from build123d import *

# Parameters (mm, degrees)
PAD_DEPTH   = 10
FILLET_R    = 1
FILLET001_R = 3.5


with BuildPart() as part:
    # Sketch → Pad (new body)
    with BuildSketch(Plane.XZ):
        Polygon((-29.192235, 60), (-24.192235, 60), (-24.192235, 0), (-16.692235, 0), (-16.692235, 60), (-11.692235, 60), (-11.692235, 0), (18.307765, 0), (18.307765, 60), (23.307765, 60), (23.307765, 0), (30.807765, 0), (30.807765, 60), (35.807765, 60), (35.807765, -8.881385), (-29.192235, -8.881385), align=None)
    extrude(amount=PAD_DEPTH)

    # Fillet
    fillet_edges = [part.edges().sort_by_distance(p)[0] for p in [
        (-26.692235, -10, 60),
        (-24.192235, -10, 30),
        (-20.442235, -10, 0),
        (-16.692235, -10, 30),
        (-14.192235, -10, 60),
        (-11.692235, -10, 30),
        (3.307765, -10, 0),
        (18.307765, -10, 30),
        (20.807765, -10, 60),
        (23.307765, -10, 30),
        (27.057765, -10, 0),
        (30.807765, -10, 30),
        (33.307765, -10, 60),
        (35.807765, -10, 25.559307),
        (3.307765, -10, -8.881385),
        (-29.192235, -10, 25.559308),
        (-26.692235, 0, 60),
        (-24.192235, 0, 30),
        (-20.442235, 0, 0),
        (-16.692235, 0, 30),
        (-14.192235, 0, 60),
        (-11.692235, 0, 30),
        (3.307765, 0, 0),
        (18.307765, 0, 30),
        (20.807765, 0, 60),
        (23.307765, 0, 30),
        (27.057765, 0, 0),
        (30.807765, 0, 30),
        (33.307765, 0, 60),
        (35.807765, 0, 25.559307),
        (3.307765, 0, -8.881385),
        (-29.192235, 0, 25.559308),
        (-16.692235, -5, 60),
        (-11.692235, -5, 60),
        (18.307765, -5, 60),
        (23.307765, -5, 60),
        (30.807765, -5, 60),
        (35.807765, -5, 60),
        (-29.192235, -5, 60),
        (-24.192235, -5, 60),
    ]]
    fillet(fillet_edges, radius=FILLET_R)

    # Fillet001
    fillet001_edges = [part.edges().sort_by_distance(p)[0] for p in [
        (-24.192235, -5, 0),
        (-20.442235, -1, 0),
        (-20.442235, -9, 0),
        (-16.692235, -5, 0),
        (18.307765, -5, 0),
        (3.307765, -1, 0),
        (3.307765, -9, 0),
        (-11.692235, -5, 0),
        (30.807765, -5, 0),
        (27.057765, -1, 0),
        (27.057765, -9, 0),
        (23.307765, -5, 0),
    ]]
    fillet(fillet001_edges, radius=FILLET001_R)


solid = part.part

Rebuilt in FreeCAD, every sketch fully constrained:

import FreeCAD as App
import Part
import Sketcher


def edges_at(feature, points):
    """Names of the edges that pass closest to the given points."""
    edges = feature.Shape.Edges
    near = lambda p: min(range(len(edges)), key=lambda i: edges[i].distToShape(Part.Vertex(*p))[0])
    return sorted({f"Edge{near(p) + 1}" for p in points})


def add_polygon(sketch, points):
    """Adds a closed chain of lines whose ends are joined by coincident constraints."""
    first, n = sketch.GeometryCount, len(points)
    for a, b in zip(points, points[1:] + points[:1]):
        sketch.addGeometry(Part.LineSegment(App.Vector(*a, 0), App.Vector(*b, 0)), False)
    for i in range(n):
        sketch.addConstraint(Sketcher.Constraint("Coincident", first + i, 2, first + (i + 1) % n, 1))

doc = App.newDocument("Part")
body = doc.addObject("PartDesign::Body", "Body")

sketch1 = body.newObject("Sketcher::SketchObject", "Sketch")
sketch1.AttachmentSupport = (doc.getObject("XZ_Plane"), [""])
sketch1.MapMode = "FlatFace"
add_polygon(sketch1, [(-24.192235, 60), (-29.192235, 60), (-29.192235, -8.881385), (35.807765, -8.881385), (35.807765, 60), (30.807765, 60), (30.807765, 0), (23.307765, 0), (23.307765, 60), (18.307765, 60), (18.307765, 0), (-11.692235, 0), (-11.692235, 60), (-16.692235, 60), (-16.692235, 0), (-24.192235, 0)])
sketch1.addConstraint([
    Sketcher.Constraint("Horizontal", 0),
    Sketcher.Constraint("Vertical", 1),
    Sketcher.Constraint("Horizontal", 2),
    Sketcher.Constraint("Vertical", 3),
    Sketcher.Constraint("Horizontal", 4),
    Sketcher.Constraint("Vertical", 5),
    Sketcher.Constraint("Horizontal", 6),
    Sketcher.Constraint("Vertical", 7),
    Sketcher.Constraint("Horizontal", 8),
    Sketcher.Constraint("Vertical", 9),
    Sketcher.Constraint("Horizontal", 10),
    Sketcher.Constraint("Vertical", 11),
    Sketcher.Constraint("Horizontal", 12),
    Sketcher.Constraint("Vertical", 13),
    Sketcher.Constraint("Horizontal", 14),
    Sketcher.Constraint("Vertical", 15),
    Sketcher.Constraint("PointOnObject", 5, 2, -1),
    Sketcher.Constraint("PointOnObject", 9, 2, -1),
    Sketcher.Constraint("PointOnObject", 13, 2, -1),
    Sketcher.Constraint("Horizontal", 0, 2, 3, 2),
    Sketcher.Constraint("Horizontal", 4, 2, 7, 2),
    Sketcher.Constraint("Horizontal", 8, 2, 11, 2),
    Sketcher.Constraint("Equal", 0, 4),
    Sketcher.Constraint("Equal", 4, 8),
    Sketcher.Constraint("Equal", 8, 12),
    Sketcher.Constraint("Equal", 6, 14),
    Sketcher.Constraint("DistanceX", 0, 2, 0, 1, 5.0),
    Sketcher.Constraint("DistanceX", 2, 1, 2, 2, 65.0),
    Sketcher.Constraint("DistanceX", 10, 2, 10, 1, 30.0),
    Sketcher.Constraint("DistanceY", 5, 2, 5, 1, 60.0),
    Sketcher.Constraint("DistanceY", 1, 2, 1, 1, 68.881385),
    Sketcher.Constraint("DistanceX", 0, 2, -1, 1, 29.192235),
])
pad1 = body.newObject("PartDesign::Pad", "Pad")
pad1.Profile = sketch1
pad1.Length = 10
doc.recompute()

fillet = body.newObject("PartDesign::Fillet", "Fillet")
fillet.Base = (pad1, edges_at(pad1, [
    (-26.692, -10, 60),
    (-24.192, -10, 30),
    (-20.442, -10, 0),
    (-16.692, -10, 30),
    (-14.192, -10, 60),
    (-11.692, -10, 30),
    (3.308, -10, 0),
    (18.308, -10, 30),
    (20.808, -10, 60),
    (23.308, -10, 30),
    (27.058, -10, 0),
    (30.808, -10, 30),
    (33.308, -10, 60),
    (35.808, -10, 25.559),
    (3.308, -10, -8.881),
    (-29.192, -10, 25.559),
    (-26.692, 0, 60),
    (-24.192, 0, 30),
    (-20.442, 0, 0),
    (-16.692, 0, 30),
    (-14.192, 0, 60),
    (-11.692, 0, 30),
    (3.308, 0, 0),
    (18.308, 0, 30),
    (20.808, 0, 60),
    (23.308, 0, 30),
    (27.058, 0, 0),
    (30.808, 0, 30),
    (33.308, 0, 60),
    (35.808, 0, 25.559),
    (3.308, 0, -8.881),
    (-29.192, 0, 25.559),
    (-16.692, -5, 60),
    (-11.692, -5, 60),
    (18.308, -5, 60),
    (23.308, -5, 60),
    (30.808, -5, 60),
    (35.808, -5, 60),
    (-29.192, -5, 60),
    (-24.192, -5, 60),
]))
fillet.Radius = 1
doc.recompute()

fillet2 = body.newObject("PartDesign::Fillet", "Fillet001")
fillet2.Base = (fillet, edges_at(fillet, [
    (-24.192, -5, 0),
    (-20.442, -1, 0),
    (-20.442, -9, 0),
    (-16.692, -5, 0),
    (18.308, -5, 0),
    (3.308, -1, 0),
    (3.308, -9, 0),
    (-11.692, -5, 0),
    (30.808, -5, 0),
    (27.058, -1, 0),
    (27.058, -9, 0),
    (23.308, -5, 0),
]))
fillet2.Radius = 3.5

doc.recompute()
